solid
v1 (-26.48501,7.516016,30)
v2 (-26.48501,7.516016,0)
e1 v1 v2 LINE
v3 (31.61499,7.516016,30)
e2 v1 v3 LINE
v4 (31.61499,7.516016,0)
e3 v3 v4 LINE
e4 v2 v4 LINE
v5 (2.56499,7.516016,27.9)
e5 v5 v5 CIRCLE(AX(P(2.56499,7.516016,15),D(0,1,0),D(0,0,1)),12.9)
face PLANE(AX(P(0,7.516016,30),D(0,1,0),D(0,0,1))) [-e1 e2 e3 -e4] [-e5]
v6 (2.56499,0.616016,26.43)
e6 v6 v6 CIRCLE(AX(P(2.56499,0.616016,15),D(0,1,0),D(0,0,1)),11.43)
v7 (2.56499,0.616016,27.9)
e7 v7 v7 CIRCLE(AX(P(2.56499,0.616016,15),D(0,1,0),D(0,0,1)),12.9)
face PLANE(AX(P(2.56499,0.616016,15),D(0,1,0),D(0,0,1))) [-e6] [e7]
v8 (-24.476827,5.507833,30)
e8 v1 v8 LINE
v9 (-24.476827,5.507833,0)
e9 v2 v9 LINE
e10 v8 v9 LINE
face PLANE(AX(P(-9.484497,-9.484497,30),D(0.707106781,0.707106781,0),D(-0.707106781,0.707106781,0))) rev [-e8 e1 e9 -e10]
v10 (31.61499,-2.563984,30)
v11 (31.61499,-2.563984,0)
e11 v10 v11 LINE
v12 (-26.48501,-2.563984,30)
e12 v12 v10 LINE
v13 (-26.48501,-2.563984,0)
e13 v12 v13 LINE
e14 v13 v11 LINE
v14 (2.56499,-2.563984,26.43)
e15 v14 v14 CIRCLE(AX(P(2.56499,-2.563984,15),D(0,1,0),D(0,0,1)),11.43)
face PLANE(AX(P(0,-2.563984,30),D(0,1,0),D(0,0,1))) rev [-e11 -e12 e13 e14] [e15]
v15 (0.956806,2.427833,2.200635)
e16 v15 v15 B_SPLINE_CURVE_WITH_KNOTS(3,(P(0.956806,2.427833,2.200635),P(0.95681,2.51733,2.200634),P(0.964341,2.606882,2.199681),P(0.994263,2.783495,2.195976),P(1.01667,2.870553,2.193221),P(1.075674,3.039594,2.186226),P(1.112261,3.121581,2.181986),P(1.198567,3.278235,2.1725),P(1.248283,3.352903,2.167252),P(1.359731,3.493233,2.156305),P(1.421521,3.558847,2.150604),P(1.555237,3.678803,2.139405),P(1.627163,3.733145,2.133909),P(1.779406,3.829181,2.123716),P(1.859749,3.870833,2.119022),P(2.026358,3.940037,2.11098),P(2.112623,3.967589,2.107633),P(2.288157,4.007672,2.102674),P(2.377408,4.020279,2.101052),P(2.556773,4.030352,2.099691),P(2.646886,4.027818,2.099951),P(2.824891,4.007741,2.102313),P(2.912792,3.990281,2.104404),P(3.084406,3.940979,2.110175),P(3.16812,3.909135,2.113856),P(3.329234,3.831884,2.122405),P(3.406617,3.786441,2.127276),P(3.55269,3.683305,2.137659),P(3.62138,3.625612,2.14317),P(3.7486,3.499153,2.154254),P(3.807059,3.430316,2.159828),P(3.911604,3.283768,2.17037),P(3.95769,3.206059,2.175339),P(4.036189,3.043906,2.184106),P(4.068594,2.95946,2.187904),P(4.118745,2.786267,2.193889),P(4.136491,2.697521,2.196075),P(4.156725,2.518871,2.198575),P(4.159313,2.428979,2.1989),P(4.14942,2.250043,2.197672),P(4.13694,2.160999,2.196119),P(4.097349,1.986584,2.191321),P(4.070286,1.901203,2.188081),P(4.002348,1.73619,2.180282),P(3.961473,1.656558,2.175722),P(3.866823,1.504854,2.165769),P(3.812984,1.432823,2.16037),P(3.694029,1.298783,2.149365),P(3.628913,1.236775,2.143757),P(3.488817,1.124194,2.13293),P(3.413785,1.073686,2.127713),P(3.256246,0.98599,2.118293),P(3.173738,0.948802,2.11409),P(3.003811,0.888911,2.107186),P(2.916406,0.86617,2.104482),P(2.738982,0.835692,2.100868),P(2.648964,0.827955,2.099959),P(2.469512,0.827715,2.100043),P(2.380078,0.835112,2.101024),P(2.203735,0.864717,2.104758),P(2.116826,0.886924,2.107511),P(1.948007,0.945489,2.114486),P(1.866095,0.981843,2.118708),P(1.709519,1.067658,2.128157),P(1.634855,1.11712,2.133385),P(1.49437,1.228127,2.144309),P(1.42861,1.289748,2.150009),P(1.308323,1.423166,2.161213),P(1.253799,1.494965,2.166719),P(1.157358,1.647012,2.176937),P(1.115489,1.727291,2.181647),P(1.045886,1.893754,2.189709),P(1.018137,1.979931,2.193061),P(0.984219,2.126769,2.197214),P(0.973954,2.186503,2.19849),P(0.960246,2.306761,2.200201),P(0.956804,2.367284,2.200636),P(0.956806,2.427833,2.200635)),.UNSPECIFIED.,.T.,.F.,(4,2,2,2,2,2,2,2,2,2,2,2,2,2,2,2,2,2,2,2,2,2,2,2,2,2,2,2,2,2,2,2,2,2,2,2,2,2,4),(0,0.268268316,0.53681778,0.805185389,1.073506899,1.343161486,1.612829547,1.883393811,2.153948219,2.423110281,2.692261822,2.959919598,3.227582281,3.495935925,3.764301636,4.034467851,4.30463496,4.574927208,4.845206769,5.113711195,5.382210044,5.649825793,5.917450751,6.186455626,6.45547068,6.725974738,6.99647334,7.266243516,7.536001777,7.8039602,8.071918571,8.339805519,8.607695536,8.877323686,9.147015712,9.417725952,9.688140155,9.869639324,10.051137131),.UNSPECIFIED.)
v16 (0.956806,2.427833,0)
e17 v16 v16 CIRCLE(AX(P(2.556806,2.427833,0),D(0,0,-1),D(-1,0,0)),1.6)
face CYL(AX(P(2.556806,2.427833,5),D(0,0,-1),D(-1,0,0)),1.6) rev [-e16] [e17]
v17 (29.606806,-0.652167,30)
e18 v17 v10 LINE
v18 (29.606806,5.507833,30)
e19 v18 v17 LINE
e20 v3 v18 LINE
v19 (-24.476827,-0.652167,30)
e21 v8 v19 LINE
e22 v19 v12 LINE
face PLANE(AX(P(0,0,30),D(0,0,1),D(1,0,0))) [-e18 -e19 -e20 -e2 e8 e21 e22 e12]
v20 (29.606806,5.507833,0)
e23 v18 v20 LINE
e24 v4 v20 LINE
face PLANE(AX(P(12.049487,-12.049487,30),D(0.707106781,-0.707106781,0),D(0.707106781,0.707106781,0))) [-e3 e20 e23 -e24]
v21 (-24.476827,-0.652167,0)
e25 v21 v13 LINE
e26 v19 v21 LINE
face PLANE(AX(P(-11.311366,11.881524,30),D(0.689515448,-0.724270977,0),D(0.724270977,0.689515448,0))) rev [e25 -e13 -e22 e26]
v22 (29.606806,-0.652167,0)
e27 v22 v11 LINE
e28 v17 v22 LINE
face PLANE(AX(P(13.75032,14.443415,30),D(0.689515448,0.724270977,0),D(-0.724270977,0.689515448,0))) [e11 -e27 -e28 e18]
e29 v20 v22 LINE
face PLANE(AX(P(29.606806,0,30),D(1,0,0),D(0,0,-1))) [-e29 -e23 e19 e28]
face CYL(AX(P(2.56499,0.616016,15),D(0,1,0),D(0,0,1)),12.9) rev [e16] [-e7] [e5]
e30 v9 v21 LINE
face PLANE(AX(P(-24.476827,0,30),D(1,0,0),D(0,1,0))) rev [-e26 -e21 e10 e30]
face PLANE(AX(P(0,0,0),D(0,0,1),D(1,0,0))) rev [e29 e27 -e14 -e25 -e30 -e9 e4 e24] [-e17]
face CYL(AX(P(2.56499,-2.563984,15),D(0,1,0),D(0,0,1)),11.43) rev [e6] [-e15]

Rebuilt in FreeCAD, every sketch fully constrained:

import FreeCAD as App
import Part
import Sketcher

V = App.Vector
Q = App.Units.Quantity


def add_polygon(sketch, points):
    """Adds a closed chain of lines whose ends are joined by coincident constraints."""
    first, n = sketch.GeometryCount, len(points)
    for a, b in zip(points, points[1:] + points[:1]):
        sketch.addGeometry(Part.LineSegment(App.Vector(*a, 0), App.Vector(*b, 0)), False)
    for i in range(n):
        sketch.addConstraint(Sketcher.Constraint("Coincident", first + i, 2, first + (i + 1) % n, 1))

doc = App.newDocument("Part")
body = doc.addObject("PartDesign::Body", "Body")

# Sketch on XY plane
sketch1 = body.newObject("Sketcher::SketchObject", "Sketch")
sketch1.AttachmentSupport = (doc.getObject("XY_Plane"), [""])
sketch1.MapMode = "FlatFace"
add_polygon(sketch1, [(31.6, -2.6), (29.6, -0.7), (29.6, 5.5), (31.6, 7.5), (-26.5, 7.5), (-24.5, 5.5), (-24.5, -0.7), (-26.5, -2.6)])  # lines 0-7
sketch1.addConstraint([
    Sketcher.Constraint("Vertical", 1),
    Sketcher.Constraint("Horizontal", 3),
    Sketcher.Constraint("Vertical", 5),
    Sketcher.Constraint("Horizontal", 7),
    Sketcher.Constraint("Perpendicular", 2, 4),
    Sketcher.Constraint("Horizontal", 1, 2, 4, 2),
    Sketcher.Constraint("Horizontal", 0, 2, 5, 2),
    Sketcher.Constraint("Vertical", 3, 2, 6, 2),
    Sketcher.Constraint("Vertical", 2, 2, 7, 2),
    Sketcher.Constraint("Equal", 2, 4),
    Sketcher.Constraint("DistanceX", 3, 2, 3, 1, Q("58.1 mm")),
    Sketcher.Constraint("DistanceY", 1, 1, 1, 2, Q("6.16 mm")),
    Sketcher.Constraint("Distance", 2, Q("2.84 mm")),
    Sketcher.Constraint("DistanceY", 6, 2, 3, 2, Q("10.08 mm")),
    Sketcher.Constraint("DistanceX", -1, 1, 2, 2, Q("31.61499 mm")),
    Sketcher.Constraint("DistanceY", 0, 2, -1, 1, Q("0.652167 mm")),
])
pad1 = body.newObject("PartDesign::Pad", "Pad")
pad1.Profile = sketch1
pad1.Length = 30

# Sketch on XZ plane
sketch2 = body.newObject("Sketcher::SketchObject", "Sketch001")
sketch2.AttachmentSupport = (doc.getObject("XZ_Plane"), [""])
sketch2.MapMode = "FlatFace"
sketch2.AttachmentOffset = App.Placement(V(0, 0, -7.516016), App.Rotation())
sketch2.addGeometry(Part.Circle(V(3, 15, 0), V(0, 0, 1), 11), False)
sketch2.addConstraint([
    Sketcher.Constraint("Diameter", 0, Q("22.86 mm")),
    Sketcher.Constraint("DistanceY", -1, 1, 0, 3, Q("15 mm")),
    Sketcher.Constraint("DistanceX", -1, 1, 0, 3, Q("2.56499 mm")),
])
pocket1 = body.newObject("PartDesign::Pocket", "Pocket")
pocket1.Profile = sketch2
pocket1.Type = "ThroughAll"
pocket1.Reversed = True

# Sketch on XZ plane
sketch3 = body.newObject("Sketcher::SketchObject", "Sketch002")
sketch3.AttachmentSupport = (doc.getObject("XZ_Plane"), [""])
sketch3.MapMode = "FlatFace"
sketch3.AttachmentOffset = App.Placement(V(0, 0, -7.516016), App.Rotation())
sketch3.addGeometry([
    Part.Circle(V(3, 15, 0), V(0, 0, 1), 13),
    Part.Circle(V(3, 15, 0), V(0, 0, 1), 11),
], False)
sketch3.addConstraint([
    Sketcher.Constraint("Coincident", 1, 3, 0, 3),
    Sketcher.Constraint("Diameter", 0, Q("25.8 mm")),
    Sketcher.Constraint("Diameter", 1, Q("22.86 mm")),
    Sketcher.Constraint("DistanceY", -1, 1, 0, 3, Q("15 mm")),
    Sketcher.Constraint("DistanceX", -1, 1, 0, 3, Q("2.56499 mm")),
])
pocket2 = body.newObject("PartDesign::Pocket", "Pocket001")
pocket2.Profile = sketch3
pocket2.Length = 6.9
pocket2.Reversed = True

# Sketch on XY plane
sketch4 = body.newObject("Sketcher::SketchObject", "Sketch003")
sketch4.AttachmentSupport = (doc.getObject("XY_Plane"), [""])
sketch4.MapMode = "FlatFace"
sketch4.addGeometry(Part.Circle(V(2.6, 2.4, 0), V(0, 0, 1), 1.6), False)
sketch4.addConstraint([
    Sketcher.Constraint("Diameter", 0, Q("3.2 mm")),
    Sketcher.Constraint("DistanceX", -1, 1, 0, 3, Q("2.556806 mm")),
    Sketcher.Constraint("DistanceY", -1, 1, 0, 3, Q("2.427833 mm")),
])
pocket3 = body.newObject("PartDesign::Pocket", "Pocket002")
pocket3.Profile = sketch4
pocket3.Length = 5
pocket3.Reversed = True

doc.recompute()
